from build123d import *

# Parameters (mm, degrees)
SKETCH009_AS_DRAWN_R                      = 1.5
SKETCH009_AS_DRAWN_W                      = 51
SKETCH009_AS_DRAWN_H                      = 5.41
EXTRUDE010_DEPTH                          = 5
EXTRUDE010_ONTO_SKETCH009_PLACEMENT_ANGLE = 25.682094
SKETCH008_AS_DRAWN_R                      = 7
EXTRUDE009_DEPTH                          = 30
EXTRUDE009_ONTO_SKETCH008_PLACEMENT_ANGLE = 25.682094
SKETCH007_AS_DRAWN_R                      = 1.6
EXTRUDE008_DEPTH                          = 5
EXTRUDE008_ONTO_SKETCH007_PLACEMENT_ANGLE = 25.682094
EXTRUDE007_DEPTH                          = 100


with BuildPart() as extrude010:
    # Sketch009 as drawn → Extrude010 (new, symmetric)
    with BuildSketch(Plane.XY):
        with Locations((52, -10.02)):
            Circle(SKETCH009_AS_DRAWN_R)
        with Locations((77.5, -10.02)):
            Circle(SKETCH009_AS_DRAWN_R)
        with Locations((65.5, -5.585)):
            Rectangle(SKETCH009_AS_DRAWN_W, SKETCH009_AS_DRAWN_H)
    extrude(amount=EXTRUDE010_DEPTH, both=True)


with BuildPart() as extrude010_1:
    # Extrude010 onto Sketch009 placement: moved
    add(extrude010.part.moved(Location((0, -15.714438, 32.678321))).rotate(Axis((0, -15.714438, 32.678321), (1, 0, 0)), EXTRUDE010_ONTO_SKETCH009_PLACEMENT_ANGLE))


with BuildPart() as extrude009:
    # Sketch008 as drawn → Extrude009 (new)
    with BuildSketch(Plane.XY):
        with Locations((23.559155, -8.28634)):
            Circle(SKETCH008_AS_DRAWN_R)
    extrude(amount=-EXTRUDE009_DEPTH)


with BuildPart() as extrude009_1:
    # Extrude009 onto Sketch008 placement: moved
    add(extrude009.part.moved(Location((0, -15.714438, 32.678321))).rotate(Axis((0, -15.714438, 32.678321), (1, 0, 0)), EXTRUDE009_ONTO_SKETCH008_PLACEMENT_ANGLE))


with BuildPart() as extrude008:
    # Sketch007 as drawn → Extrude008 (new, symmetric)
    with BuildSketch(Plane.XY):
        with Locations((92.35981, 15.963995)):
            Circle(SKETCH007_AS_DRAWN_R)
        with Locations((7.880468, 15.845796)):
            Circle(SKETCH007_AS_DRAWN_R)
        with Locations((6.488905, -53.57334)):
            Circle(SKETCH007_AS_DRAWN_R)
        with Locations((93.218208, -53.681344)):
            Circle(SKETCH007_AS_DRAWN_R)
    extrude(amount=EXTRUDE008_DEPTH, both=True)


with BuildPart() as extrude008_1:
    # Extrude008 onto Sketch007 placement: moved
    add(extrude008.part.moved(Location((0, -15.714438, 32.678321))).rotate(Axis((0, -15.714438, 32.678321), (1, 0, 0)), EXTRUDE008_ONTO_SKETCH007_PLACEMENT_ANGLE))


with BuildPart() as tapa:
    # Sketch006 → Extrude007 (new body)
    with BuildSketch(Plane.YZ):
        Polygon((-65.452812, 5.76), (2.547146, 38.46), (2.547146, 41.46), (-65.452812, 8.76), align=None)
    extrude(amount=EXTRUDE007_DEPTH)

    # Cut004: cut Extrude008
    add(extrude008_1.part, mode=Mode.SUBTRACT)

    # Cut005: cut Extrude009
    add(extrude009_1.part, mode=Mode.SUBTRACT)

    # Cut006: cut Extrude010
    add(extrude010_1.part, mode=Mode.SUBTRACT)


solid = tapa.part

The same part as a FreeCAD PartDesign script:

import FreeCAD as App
import Part
import Sketcher
from FreeCAD import Vector
Q = App.Units.Quantity

doc = App.newDocument("Part")
body = doc.addObject("PartDesign::Body", "Body")
body.AllowCompound = True

# Sketch on XY plane
sketch1 = doc.addObject("Sketcher::SketchObject", "Sketch")
body.addObject(sketch1)
sketch1.AttachmentSupport = (doc.XY_Plane, [""])
sketch1.MapMode = "FlatFace"
sketch1.addGeometry([
    Part.Circle(Vector(52, -10.02, 0), Vector(0, 0, 1), 1.5),  # 0
    Part.Circle(Vector(77.5, -10.02, 0), Vector(0, 0, 1), 1.5),  # 1
    Part.LineSegment(Vector(40, -2.88, 0), Vector(40, -8.29, 0)),  # 2
    Part.LineSegment(Vector(40, -8.29, 0), Vector(91, -8.29, 0)),  # 3
    Part.LineSegment(Vector(91, -8.29, 0), Vector(91, -2.88, 0)),  # 4
    Part.LineSegment(Vector(91, -2.88, 0), Vector(40, -2.88, 0)),  # 5
], False)
sketch1.addConstraint([
    Sketcher.Constraint("Coincident", 2, 2, 3, 1),
    Sketcher.Constraint("Coincident", 3, 2, 4, 1),
    Sketcher.Constraint("Coincident", 4, 2, 5, 1),
    Sketcher.Constraint("Coincident", 5, 2, 2, 1),
    Sketcher.Constraint("Vertical", 2),
    Sketcher.Constraint("Horizontal", 3),
    Sketcher.Constraint("Vertical", 4),
    Sketcher.Constraint("Horizontal", 5),
    Sketcher.Constraint("Equal", 0, 1),
    Sketcher.Constraint("Horizontal", 0, 3, 1, 3),
    Sketcher.Constraint("Diameter", 0, Q("3 mm")),
    Sketcher.Constraint("DistanceX", 3, 1, 3, 2, Q("51 mm")),
    Sketcher.Constraint("DistanceX", -1, 1, 0, 3, Q("52 mm")),
    Sketcher.Constraint("DistanceX", -1, 1, 2, 2, Q("40 mm")),
    Sketcher.Constraint("DistanceY", 2, 2, 2, 1, Q("5.41 mm")),
    Sketcher.Constraint("DistanceX", -1, 1, 1, 3, Q("77.5 mm")),
    Sketcher.Constraint("DistanceY", 0, 3, -1, 1, Q("10.02 mm")),
    Sketcher.Constraint("DistanceY", 2, 2, -1, 1, Q("8.29 mm")),
])
pad1 = doc.addObject("PartDesign::Pad", "Pad")
body.addObject(pad1)
pad1.Profile = sketch1
pad1.Length = 10
pad1.Midplane = True
body2 = doc.addObject("PartDesign::Body", "Body001")
body2.AllowCompound = True
doc.recompute()

body.Placement = App.Placement(Vector(0, -15.714438, 32.678321), App.Rotation(Vector(1, 0, 0), 25.682094))
boolean = doc.addObject("PartDesign::Boolean", "Boolean")
body2.addObject(boolean)
boolean.Type = "Fuse"
boolean.addObjects([body])
body3 = doc.addObject("PartDesign::Body", "Body002")

# Sketch on XY plane
sketch2 = doc.addObject("Sketcher::SketchObject", "Sketch001")
body3.addObject(sketch2)
sketch2.AttachmentSupport = (doc.getObject("XY_Plane002"), [""])
sketch2.MapMode = "FlatFace"
sketch2.addGeometry(Part.Circle(Vector(23.559155, -8.28634, 0), Vector(0, 0, 1), 7), False)
sketch2.addConstraint([
    Sketcher.Constraint("Diameter", 0, Q("14 mm")),
    Sketcher.Constraint("DistanceY", 0, 3, -1, 1, Q("8.28634 mm")),
    Sketcher.Constraint("DistanceX", -1, 1, 0, 3, Q("23.559155 mm")),
])
pad2 = doc.addObject("PartDesign::Pad", "Pad001")
body3.addObject(pad2)
pad2.Profile = sketch2
pad2.Length = 30
pad2.Reversed = True
body4 = doc.addObject("PartDesign::Body", "Body003")
doc.recompute()

body3.Placement = App.Placement(Vector(0, -15.714438, 32.678321), App.Rotation(Vector(1, 0, 0), 25.682094))
boolean2 = doc.addObject("PartDesign::Boolean", "Boolean001")
body4.addObject(boolean2)
boolean2.Type = "Fuse"
boolean2.addObjects([body3])
body5 = doc.addObject("PartDesign::Body", "Body004")
body5.AllowCompound = True

# Sketch on XY plane
sketch3 = doc.addObject("Sketcher::SketchObject", "Sketch002")
body5.addObject(sketch3)
sketch3.AttachmentSupport = (doc.getObject("XY_Plane004"), [""])
sketch3.MapMode = "FlatFace"
sketch3.addGeometry([
    Part.Circle(Vector(92.35981, 15.963995, 0), Vector(0, 0, 1), 1.6),
    Part.Circle(Vector(7.880468, 15.845796, 0), Vector(0, 0, 1), 1.6),
    Part.Circle(Vector(6.488905, -53.57334, 0), Vector(0, 0, 1), 1.6),
    Part.Circle(Vector(93.218208, -53.681344, 0), Vector(0, 0, 1), 1.6),
], False)
sketch3.addConstraint([
    Sketcher.Constraint("Equal", 0, 1),
    Sketcher.Constraint("Equal", 1, 2),
    Sketcher.Constraint("Equal", 2, 3),
    Sketcher.Constraint("Diameter", 0, Q("3.2 mm")),
    Sketcher.Constraint("DistanceY", 1, 3, 0, 3, Q("0.118199 mm")),
    Sketcher.Constraint("DistanceX", 0, 3, 3, 3, Q("0.858398 mm")),
    Sketcher.Constraint("DistanceX", -1, 1, 0, 3, Q("92.35981 mm")),
    Sketcher.Constraint("DistanceY", 2, 3, -1, 1, Q("53.57334 mm")),
    Sketcher.Constraint("DistanceY", 3, 3, 0, 3, Q("69.645339 mm")),
    Sketcher.Constraint("DistanceX", 1, 3, 3, 3, Q("85.33774 mm")),
    Sketcher.Constraint("DistanceY", -1, 1, 0, 3, Q("15.963995 mm")),
    Sketcher.Constraint("DistanceX", -1, 1, 2, 3, Q("6.488905 mm")),
])
pad3 = doc.addObject("PartDesign::Pad", "Pad002")
body5.addObject(pad3)
pad3.Profile = sketch3
pad3.Length = 10
pad3.Midplane = True
body6 = doc.addObject("PartDesign::Body", "Body005")
body6.AllowCompound = True
doc.recompute()

body5.Placement = App.Placement(Vector(0, -15.714438, 32.678321), App.Rotation(Vector(1, 0, 0), 25.682094))
boolean3 = doc.addObject("PartDesign::Boolean", "Boolean002")
body6.addObject(boolean3)
boolean3.Type = "Fuse"
boolean3.addObjects([body5])
body7 = doc.addObject("PartDesign::Body", "Body006")

# Sketch on YZ plane
sketch4 = doc.addObject("Sketcher::SketchObject", "Sketch003")
body7.addObject(sketch4)
sketch4.AttachmentSupport = (doc.getObject("YZ_Plane006"), [""])
sketch4.MapMode = "FlatFace"
sketch4.addGeometry([
    Part.LineSegment(Vector(-65.452812, 5.76, 0), Vector(2.547146, 38.46, 0)),
    Part.LineSegment(Vector(2.547146, 38.46, 0), Vector(2.547146, 41.46, 0)),
    Part.LineSegment(Vector(2.547146, 41.46, 0), Vector(-65.452812, 8.76, 0)),
    Part.LineSegment(Vector(-65.452812, 8.76, 0), Vector(-65.452812, 5.76, 0)),
], False)
sketch4.addConstraint([
    Sketcher.Constraint("Coincident", 0, 2, 1, 1),
    Sketcher.Constraint("Coincident", 1, 2, 2, 1),
    Sketcher.Constraint("Coincident", 2, 2, 3, 1),
    Sketcher.Constraint("Coincident", 3, 2, 0, 1),
    Sketcher.Constraint("Vertical", 1),
    Sketcher.Constraint("Vertical", 3),
    Sketcher.Constraint("Parallel", 0, 2),
    Sketcher.Constraint("DistanceY", 1, 1, 1, 2, Q("3 mm")),
    Sketcher.Constraint("DistanceY", 2, 2, 0, 2, Q("29.7 mm")),
    Sketcher.Constraint("DistanceY", -1, 1, 0, 2, Q("38.46 mm")),
    Sketcher.Constraint("DistanceX", 2, 2, -1, 1, Q("65.452812 mm")),
    Sketcher.Constraint("Distance", 0, Q("75.453855 mm")),
])
pad4 = doc.addObject("PartDesign::Pad", "Pad003")
body7.addObject(pad4)
pad4.Profile = sketch4
pad4.Length = 100
doc.recompute()

boolean4 = doc.addObject("PartDesign::Boolean", "Boolean003")
body7.addObject(boolean4)
boolean4.Type = "Cut"
boolean4.addObjects([body6])
doc.recompute()

boolean5 = doc.addObject("PartDesign::Boolean", "Boolean004")
body7.addObject(boolean5)
boolean5.Type = "Cut"
boolean5.addObjects([body4])
doc.recompute()

boolean6 = doc.addObject("PartDesign::Boolean", "Boolean005")
body7.addObject(boolean6)
boolean6.Type = "Cut"
boolean6.addObjects([body2])

doc.recompute()
